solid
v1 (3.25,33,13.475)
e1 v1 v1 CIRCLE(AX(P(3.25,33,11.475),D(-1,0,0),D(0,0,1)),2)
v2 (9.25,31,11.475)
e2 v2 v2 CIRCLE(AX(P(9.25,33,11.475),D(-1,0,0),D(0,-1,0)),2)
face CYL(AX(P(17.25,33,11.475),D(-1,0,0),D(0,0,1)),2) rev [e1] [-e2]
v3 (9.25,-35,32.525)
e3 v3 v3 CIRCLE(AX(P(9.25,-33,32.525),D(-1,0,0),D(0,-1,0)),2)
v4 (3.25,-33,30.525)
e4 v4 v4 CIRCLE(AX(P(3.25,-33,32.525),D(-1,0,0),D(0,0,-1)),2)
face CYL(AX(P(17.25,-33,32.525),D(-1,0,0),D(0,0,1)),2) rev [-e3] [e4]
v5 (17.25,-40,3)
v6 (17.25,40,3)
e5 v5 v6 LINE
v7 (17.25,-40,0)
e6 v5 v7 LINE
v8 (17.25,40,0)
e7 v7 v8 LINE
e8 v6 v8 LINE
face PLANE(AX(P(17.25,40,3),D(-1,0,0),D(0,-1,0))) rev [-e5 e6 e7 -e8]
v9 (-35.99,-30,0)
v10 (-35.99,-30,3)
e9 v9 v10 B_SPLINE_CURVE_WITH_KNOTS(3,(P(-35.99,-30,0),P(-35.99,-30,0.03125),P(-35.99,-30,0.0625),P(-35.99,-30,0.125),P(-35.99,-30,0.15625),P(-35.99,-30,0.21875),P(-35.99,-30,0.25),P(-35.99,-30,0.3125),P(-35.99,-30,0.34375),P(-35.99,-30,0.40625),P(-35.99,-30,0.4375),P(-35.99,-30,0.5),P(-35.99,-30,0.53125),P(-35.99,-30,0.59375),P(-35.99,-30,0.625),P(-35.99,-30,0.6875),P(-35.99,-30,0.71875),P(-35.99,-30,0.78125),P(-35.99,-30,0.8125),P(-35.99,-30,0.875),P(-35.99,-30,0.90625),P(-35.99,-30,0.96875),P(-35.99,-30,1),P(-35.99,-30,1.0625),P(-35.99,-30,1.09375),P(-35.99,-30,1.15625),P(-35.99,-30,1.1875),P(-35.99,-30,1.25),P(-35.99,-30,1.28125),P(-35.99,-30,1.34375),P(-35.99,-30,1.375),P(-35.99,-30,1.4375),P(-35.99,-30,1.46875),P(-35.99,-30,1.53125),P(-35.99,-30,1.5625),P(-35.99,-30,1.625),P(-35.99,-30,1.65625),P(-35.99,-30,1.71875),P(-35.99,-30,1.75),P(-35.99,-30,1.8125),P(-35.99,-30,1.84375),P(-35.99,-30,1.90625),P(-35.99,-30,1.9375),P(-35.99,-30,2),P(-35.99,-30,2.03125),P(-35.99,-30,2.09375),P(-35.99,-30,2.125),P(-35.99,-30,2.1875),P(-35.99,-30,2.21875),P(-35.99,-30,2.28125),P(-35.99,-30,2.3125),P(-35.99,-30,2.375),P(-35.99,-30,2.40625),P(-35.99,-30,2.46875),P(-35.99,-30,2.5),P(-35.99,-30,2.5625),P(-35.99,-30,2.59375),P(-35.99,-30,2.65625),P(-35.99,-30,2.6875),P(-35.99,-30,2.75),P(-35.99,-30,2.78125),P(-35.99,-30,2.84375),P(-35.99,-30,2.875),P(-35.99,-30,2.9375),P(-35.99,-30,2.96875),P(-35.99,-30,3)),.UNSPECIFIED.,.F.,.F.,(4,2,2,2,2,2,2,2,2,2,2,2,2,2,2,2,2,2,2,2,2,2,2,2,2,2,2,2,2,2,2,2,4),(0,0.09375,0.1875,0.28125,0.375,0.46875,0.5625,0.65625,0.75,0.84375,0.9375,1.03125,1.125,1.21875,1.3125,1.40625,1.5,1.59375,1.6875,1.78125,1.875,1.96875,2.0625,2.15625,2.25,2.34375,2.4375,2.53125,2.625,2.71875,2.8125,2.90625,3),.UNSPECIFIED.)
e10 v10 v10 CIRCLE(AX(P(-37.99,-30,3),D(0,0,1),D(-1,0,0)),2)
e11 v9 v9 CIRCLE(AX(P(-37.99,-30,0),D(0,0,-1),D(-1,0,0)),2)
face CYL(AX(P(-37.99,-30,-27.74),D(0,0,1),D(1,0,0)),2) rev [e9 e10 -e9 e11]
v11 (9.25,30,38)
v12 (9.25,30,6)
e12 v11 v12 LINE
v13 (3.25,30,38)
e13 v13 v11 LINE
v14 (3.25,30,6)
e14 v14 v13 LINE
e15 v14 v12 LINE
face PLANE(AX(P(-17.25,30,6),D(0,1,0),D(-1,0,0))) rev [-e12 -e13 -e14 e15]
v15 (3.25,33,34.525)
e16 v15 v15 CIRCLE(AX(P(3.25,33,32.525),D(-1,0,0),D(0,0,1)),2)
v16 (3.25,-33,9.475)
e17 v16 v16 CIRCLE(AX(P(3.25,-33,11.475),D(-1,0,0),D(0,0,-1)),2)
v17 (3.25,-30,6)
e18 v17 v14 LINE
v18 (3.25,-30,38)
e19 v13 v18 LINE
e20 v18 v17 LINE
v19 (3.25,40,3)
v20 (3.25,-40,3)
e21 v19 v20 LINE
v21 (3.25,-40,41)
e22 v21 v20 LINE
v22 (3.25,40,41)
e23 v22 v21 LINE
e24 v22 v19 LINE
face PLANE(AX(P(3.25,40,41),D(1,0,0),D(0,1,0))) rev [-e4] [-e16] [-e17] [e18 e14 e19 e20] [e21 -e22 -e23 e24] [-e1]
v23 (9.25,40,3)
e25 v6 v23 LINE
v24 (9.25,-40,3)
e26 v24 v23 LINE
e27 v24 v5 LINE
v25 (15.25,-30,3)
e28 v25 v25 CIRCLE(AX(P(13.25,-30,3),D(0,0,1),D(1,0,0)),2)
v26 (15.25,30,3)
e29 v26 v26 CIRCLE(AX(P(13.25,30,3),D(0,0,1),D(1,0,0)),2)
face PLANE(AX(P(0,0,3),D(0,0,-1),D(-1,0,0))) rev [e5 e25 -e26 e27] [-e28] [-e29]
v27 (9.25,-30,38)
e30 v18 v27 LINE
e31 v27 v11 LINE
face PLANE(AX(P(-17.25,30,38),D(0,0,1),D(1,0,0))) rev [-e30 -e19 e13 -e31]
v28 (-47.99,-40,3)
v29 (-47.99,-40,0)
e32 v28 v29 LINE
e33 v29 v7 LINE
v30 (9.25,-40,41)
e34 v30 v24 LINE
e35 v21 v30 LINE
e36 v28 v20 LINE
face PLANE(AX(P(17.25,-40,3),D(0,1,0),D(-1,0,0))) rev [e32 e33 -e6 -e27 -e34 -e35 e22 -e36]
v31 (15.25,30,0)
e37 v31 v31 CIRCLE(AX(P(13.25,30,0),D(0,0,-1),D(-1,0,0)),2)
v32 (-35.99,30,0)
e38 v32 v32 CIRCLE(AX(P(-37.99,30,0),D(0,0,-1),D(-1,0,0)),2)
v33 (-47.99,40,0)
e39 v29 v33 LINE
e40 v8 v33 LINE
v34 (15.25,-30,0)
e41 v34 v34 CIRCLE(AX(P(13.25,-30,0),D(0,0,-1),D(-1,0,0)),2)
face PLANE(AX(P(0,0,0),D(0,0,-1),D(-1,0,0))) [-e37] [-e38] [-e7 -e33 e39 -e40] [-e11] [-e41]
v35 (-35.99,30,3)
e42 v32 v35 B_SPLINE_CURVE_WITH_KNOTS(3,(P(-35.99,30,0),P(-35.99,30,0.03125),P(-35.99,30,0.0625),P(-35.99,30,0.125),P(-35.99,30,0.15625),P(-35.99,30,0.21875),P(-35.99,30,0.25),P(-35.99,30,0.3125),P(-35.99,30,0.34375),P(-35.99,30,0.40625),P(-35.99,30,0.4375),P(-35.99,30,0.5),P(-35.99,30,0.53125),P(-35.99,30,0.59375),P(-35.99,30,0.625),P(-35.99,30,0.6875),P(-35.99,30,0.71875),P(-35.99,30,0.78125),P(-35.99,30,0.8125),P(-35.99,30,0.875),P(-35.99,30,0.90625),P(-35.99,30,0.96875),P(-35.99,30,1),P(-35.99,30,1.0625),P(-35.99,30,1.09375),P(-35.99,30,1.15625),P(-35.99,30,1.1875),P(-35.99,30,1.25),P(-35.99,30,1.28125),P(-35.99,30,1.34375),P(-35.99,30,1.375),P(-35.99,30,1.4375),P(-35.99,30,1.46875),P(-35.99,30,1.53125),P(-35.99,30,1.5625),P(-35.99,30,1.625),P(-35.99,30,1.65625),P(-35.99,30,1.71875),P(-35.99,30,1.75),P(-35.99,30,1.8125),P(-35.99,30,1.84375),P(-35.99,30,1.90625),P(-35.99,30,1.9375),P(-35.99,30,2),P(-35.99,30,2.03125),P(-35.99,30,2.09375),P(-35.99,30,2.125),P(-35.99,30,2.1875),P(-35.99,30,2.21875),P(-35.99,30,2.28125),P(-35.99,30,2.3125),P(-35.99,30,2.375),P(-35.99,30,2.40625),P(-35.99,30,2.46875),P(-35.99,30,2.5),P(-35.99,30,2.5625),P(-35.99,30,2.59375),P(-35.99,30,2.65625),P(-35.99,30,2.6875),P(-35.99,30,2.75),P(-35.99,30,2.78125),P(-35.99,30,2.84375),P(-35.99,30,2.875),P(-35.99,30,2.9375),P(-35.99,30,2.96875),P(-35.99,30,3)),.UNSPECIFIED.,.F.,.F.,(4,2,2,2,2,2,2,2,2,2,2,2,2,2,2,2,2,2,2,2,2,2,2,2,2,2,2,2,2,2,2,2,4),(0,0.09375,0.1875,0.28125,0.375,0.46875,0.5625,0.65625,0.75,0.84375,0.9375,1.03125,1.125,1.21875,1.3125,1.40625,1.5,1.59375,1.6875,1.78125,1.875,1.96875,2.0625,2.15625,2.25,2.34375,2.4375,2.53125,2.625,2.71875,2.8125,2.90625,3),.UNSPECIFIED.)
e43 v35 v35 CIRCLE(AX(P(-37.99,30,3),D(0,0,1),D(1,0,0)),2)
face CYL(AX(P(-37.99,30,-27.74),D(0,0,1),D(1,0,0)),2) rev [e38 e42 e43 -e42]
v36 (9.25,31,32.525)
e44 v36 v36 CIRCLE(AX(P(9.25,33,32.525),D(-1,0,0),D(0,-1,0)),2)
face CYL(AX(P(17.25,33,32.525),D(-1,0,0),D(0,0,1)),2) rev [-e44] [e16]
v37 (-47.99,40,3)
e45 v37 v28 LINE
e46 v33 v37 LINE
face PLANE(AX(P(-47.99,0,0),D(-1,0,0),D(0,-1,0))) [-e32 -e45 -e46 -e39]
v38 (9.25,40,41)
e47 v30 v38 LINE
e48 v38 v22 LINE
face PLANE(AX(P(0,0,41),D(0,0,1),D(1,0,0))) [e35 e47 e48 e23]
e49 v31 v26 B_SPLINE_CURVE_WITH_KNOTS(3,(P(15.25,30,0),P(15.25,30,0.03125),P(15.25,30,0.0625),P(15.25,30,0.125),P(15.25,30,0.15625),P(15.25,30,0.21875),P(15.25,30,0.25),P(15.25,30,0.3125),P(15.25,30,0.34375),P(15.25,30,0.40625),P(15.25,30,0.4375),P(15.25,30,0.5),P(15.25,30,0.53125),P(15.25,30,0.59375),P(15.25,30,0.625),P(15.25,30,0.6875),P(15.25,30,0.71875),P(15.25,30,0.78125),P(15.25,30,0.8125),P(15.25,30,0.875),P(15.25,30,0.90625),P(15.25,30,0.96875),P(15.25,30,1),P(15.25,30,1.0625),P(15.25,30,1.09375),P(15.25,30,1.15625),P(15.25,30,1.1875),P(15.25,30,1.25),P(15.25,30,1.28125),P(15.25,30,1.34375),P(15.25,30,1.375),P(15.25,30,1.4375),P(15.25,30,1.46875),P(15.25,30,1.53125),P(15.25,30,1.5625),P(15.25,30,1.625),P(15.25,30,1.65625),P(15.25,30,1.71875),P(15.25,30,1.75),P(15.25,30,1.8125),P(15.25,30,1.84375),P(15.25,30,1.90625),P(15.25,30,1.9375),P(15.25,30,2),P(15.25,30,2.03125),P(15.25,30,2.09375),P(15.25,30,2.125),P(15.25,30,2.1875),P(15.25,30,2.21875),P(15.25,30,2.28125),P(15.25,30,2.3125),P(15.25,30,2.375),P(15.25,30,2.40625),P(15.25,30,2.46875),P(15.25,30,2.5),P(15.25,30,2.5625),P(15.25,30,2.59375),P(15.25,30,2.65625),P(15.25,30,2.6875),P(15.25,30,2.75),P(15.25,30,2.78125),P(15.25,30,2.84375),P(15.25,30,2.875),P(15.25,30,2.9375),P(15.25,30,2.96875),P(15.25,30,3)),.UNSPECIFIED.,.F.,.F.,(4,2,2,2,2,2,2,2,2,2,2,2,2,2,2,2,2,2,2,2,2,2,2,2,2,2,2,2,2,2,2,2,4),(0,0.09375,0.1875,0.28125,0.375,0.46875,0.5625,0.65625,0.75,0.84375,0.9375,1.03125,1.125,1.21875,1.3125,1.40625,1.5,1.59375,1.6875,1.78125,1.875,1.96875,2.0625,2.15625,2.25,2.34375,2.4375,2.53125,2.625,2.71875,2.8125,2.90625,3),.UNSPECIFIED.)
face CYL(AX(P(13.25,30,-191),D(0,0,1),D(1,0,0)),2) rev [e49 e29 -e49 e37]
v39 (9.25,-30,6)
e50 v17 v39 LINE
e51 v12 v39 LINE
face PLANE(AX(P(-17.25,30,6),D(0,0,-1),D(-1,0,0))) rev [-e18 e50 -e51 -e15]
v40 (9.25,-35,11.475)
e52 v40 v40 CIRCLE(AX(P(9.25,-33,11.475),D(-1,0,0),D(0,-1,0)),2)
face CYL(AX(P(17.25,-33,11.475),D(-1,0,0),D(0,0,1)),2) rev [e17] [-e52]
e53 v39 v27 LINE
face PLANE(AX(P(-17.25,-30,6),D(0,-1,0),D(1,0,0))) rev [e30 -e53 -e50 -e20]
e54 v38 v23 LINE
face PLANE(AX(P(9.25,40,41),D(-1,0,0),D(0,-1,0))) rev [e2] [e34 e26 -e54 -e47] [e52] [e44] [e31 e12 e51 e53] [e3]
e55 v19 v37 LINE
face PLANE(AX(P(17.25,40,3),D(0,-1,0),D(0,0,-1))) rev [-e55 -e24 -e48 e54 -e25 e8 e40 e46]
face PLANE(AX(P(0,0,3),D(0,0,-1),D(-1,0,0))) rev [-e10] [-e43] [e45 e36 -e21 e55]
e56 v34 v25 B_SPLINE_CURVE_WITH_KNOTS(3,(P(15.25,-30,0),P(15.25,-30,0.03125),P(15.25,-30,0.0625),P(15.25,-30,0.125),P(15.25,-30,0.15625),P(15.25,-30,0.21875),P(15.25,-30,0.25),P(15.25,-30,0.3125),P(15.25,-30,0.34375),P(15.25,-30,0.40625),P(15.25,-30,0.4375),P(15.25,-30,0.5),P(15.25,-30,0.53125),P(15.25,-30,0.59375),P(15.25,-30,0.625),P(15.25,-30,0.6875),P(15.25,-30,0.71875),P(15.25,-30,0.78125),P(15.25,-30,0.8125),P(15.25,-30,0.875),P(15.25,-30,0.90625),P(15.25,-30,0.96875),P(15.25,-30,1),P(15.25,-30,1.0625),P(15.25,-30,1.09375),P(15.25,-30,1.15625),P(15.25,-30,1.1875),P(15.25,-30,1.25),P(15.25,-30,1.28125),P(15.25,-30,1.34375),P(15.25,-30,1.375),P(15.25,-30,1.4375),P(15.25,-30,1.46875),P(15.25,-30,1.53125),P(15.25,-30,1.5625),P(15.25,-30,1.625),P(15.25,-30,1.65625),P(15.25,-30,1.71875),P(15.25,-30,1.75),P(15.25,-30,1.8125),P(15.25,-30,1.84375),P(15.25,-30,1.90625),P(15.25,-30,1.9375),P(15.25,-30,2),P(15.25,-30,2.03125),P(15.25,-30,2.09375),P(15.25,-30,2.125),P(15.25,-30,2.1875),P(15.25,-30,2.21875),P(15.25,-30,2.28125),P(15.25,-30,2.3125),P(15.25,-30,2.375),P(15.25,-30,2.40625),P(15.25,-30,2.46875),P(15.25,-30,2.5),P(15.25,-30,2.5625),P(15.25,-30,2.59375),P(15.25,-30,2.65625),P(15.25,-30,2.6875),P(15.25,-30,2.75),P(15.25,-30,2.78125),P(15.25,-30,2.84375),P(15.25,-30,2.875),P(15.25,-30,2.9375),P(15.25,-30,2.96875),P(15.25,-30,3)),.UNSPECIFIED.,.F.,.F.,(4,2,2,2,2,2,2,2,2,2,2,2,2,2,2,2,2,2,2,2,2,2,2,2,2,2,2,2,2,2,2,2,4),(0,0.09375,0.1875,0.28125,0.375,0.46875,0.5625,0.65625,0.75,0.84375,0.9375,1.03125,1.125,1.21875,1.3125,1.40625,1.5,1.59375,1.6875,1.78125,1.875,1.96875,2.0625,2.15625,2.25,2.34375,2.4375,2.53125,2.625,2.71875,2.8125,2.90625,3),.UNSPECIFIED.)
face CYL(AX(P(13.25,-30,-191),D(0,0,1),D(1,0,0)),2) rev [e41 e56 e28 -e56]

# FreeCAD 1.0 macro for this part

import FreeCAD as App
import Part
import Sketcher
Q = App.Units.Quantity

doc = App.newDocument("Part")
body = doc.addObject("PartDesign::Body", "Body")

# Sketch on XY plane
sketch1 = doc.addObject("Sketcher::SketchObject", "Sketch")
body.addObject(sketch1)
sketch1.AttachmentSupport = (doc.XY_Plane, [""])
sketch1.MapMode = "FlatFace"
sketch1.addGeometry(Part.LineSegment(App.Vector(-17, 40, 0), App.Vector(-17, -40, 0)), False)
sketch1.addGeometry(Part.LineSegment(App.Vector(-17, -40, 0), App.Vector(17, -40, 0)), False)
sketch1.addGeometry(Part.LineSegment(App.Vector(17, -40, 0), App.Vector(17, 40, 0)), False)
sketch1.addGeometry(Part.LineSegment(App.Vector(17, 40, 0), App.Vector(-17, 40, 0)), False)
sketch1.addConstraint(Sketcher.Constraint("Coincident", 0, 2, 1, 1))
sketch1.addConstraint(Sketcher.Constraint("Coincident", 1, 2, 2, 1))
sketch1.addConstraint(Sketcher.Constraint("Coincident", 2, 2, 3, 1))
sketch1.addConstraint(Sketcher.Constraint("Coincident", 3, 2, 0, 1))
sketch1.addConstraint(Sketcher.Constraint("Vertical", 0))
sketch1.addConstraint(Sketcher.Constraint("Horizontal", 1))
sketch1.addConstraint(Sketcher.Constraint("Vertical", 2))
sketch1.addConstraint(Sketcher.Constraint("Horizontal", 3))
sketch1.addConstraint(Sketcher.Constraint("Symmetric", 0, 2, 2, 2, -1, 1))
sketch1.addConstraint(Sketcher.Constraint("DistanceY", 0, 2, 0, 1, Q("80 mm")))
sketch1.addConstraint(Sketcher.Constraint("DistanceX", 1, 1, 1, 2, Q("34.5 mm")))
pad1 = doc.addObject("PartDesign::Pad", "Pad")
body.addObject(pad1)
pad1.Profile = sketch1
pad1.Length = 3

# Sketch on XY plane
sketch2 = doc.addObject("Sketcher::SketchObject", "Sketch001")
body.addObject(sketch2)
sketch2.AttachmentSupport = (doc.XY_Plane, [""])
sketch2.MapMode = "FlatFace"
sketch2.AttachmentOffset = App.Placement(App.Vector(0, 0, 3), App.Rotation())
sketch2.addGeometry(Part.LineSegment(App.Vector(3, 40, 0), App.Vector(3, -40, 0)), False)
sketch2.addGeometry(Part.LineSegment(App.Vector(3, -40, 0), App.Vector(9, -40, 0)), False)
sketch2.addGeometry(Part.LineSegment(App.Vector(9, -40, 0), App.Vector(9, 40, 0)), False)
sketch2.addGeometry(Part.LineSegment(App.Vector(9, 40, 0), App.Vector(3, 40, 0)), False)
sketch2.addConstraint(Sketcher.Constraint("Coincident", 0, 2, 1, 1))
sketch2.addConstraint(Sketcher.Constraint("Coincident", 1, 2, 2, 1))
sketch2.addConstraint(Sketcher.Constraint("Coincident", 2, 2, 3, 1))
sketch2.addConstraint(Sketcher.Constraint("Coincident", 3, 2, 0, 1))
sketch2.addConstraint(Sketcher.Constraint("Vertical", 0))
sketch2.addConstraint(Sketcher.Constraint("Horizontal", 1))
sketch2.addConstraint(Sketcher.Constraint("Vertical", 2))
sketch2.addConstraint(Sketcher.Constraint("Horizontal", 3))
sketch2.addConstraint(Sketcher.Constraint("DistanceX", 1, 1, 1, 2, Q("6 mm")))
sketch2.addConstraint(Sketcher.Constraint("DistanceY", 0, 2, 0, 1, Q("80 mm")))
sketch2.addConstraint(Sketcher.Constraint("DistanceY", 0, 2, -1, 1, Q("40 mm")))
sketch2.addConstraint(Sketcher.Constraint("DistanceX", -1, 1, 0, 2, Q("3.25 mm")))
pad2 = doc.addObject("PartDesign::Pad", "Pad001")
body.addObject(pad2)
pad2.Profile = sketch2
pad2.Length = 38

# Sketch on YZ plane
sketch3 = doc.addObject("Sketcher::SketchObject", "Sketch002")
body.addObject(sketch3)
sketch3.AttachmentSupport = (doc.YZ_Plane, [""])
sketch3.MapMode = "FlatFace"
sketch3.AttachmentOffset = App.Placement(App.Vector(0, 0, 9.25), App.Rotation())
sketch3.addGeometry(Part.LineSegment(App.Vector(30, 38, 0), App.Vector(-30, 38, 0)), False)
sketch3.addGeometry(Part.LineSegment(App.Vector(-30, 38, 0), App.Vector(-30, 6, 0)), False)
sketch3.addGeometry(Part.LineSegment(App.Vector(-30, 6, 0), App.Vector(30, 6, 0)), False)
sketch3.addGeometry(Part.LineSegment(App.Vector(30, 6, 0), App.Vector(30, 38, 0)), False)
sketch3.addConstraint(Sketcher.Constraint("Coincident", 0, 2, 1, 1))
sketch3.addConstraint(Sketcher.Constraint("Coincident", 1, 2, 2, 1))
sketch3.addConstraint(Sketcher.Constraint("Coincident", 2, 2, 3, 1))
sketch3.addConstraint(Sketcher.Constraint("Coincident", 3, 2, 0, 1))
sketch3.addConstraint(Sketcher.Constraint("Horizontal", 0))
sketch3.addConstraint(Sketcher.Constraint("Vertical", 1))
sketch3.addConstraint(Sketcher.Constraint("Horizontal", 2))
sketch3.addConstraint(Sketcher.Constraint("Vertical", 3))
sketch3.addConstraint(Sketcher.Constraint("DistanceX", 0, 2, 0, 1, Q("60 mm")))
sketch3.addConstraint(Sketcher.Constraint("DistanceY", 1, 2, 1, 1, Q("32 mm")))
sketch3.addConstraint(Sketcher.Constraint("DistanceX", 0, 2, -1, 1, Q("30 mm")))
sketch3.addConstraint(Sketcher.Constraint("DistanceY", -1, 1, 0, 2, Q("38 mm")))
pocket1 = doc.addObject("PartDesign::Pocket", "Pocket")
body.addObject(pocket1)
pocket1.Profile = sketch3
pocket1.Type = "ThroughAll"
pocket1.Midplane = True

# Sketch on YZ plane
sketch4 = doc.addObject("Sketcher::SketchObject", "Sketch003")
body.addObject(sketch4)
sketch4.AttachmentSupport = (doc.YZ_Plane, [""])
sketch4.MapMode = "FlatFace"
sketch4.AttachmentOffset = App.Placement(App.Vector(0, 0, 3.25), App.Rotation())
sketch4.addGeometry(Part.Circle(App.Vector(33, 11.5, 0), App.Vector(0, 0, 1), 2), False)
sketch4.addGeometry(Part.Circle(App.Vector(33, 32.5, 0), App.Vector(0, 0, 1), 2), False)
sketch4.addGeometry(Part.Circle(App.Vector(-33, 32.5, 0), App.Vector(0, 0, 1), 2), False)
sketch4.addGeometry(Part.Circle(App.Vector(-33, 11.5, 0), App.Vector(0, 0, 1), 2), False)
sketch4.addConstraint(Sketcher.Constraint("Equal", 0, 1))
sketch4.addConstraint(Sketcher.Constraint("Equal", 1, 2))
sketch4.addConstraint(Sketcher.Constraint("Equal", 2, 3))
sketch4.addConstraint(Sketcher.Constraint("Symmetric", 1, 3, 2, 3, -2))
sketch4.addConstraint(Sketcher.Constraint("Symmetric", 0, 3, 3, 3, -2))
sketch4.addConstraint(Sketcher.Constraint("Vertical", 0, 3, 1, 3))
sketch4.addConstraint(Sketcher.Constraint("Diameter", 0, Q("4 mm")))
sketch4.addConstraint(Sketcher.Constraint("DistanceX", -1, 1, 0, 3, Q("33 mm")))
sketch4.addConstraint(Sketcher.Constraint("DistanceY", 0, 3, 1, 3, Q("21.05 mm")))
sketch4.addConstraint(Sketcher.Constraint("DistanceY", -1, 1, 0, 3, Q("11.475 mm")))
pocket2 = doc.addObject("PartDesign::Pocket", "Pocket001")
body.addObject(pocket2)
pocket2.Profile = sketch4
pocket2.Type = "ThroughAll"
pocket2.Reversed = True

# Sketch on YZ plane
sketch5 = doc.addObject("Sketcher::SketchObject", "Sketch004")
body.addObject(sketch5)
sketch5.AttachmentSupport = (doc.YZ_Plane, [""])
sketch5.MapMode = "FlatFace"
sketch5.AttachmentOffset = App.Placement(App.Vector(0, 0, -17.25), App.Rotation())
sketch5.addGeometry(Part.LineSegment(App.Vector(40, 3, 0), App.Vector(-40, 3, 0)), False)
sketch5.addGeometry(Part.LineSegment(App.Vector(-40, 3, 0), App.Vector(-40, 0, 0)), False)
sketch5.addGeometry(Part.LineSegment(App.Vector(-40, 0, 0), App.Vector(40, 0, 0)), False)
sketch5.addGeometry(Part.LineSegment(App.Vector(40, 0, 0), App.Vector(40, 3, 0)), False)
sketch5.addConstraint(Sketcher.Constraint("Coincident", 0, 2, 1, 1))
sketch5.addConstraint(Sketcher.Constraint("Coincident", 1, 2, 2, 1))
sketch5.addConstraint(Sketcher.Constraint("Coincident", 2, 2, 3, 1))
sketch5.addConstraint(Sketcher.Constraint("Coincident", 3, 2, 0, 1))
sketch5.addConstraint(Sketcher.Constraint("Horizontal", 0))
sketch5.addConstraint(Sketcher.Constraint("Vertical", 1))
sketch5.addConstraint(Sketcher.Constraint("Horizontal", 2))
sketch5.addConstraint(Sketcher.Constraint("Vertical", 3))
sketch5.addConstraint(Sketcher.Constraint("Symmetric", 1, 2, 2, 2, -1, 1))
sketch5.addConstraint(Sketcher.Constraint("DistanceX", 0, 2, 0, 1, Q("80 mm")))
sketch5.addConstraint(Sketcher.Constraint("DistanceY", 1, 2, 1, 1, Q("3 mm")))
pad3 = doc.addObject("PartDesign::Pad", "Pad002")
body.addObject(pad3)
pad3.Profile = sketch5
pad3.Length = 30.74
pad3.Reversed = True

# Sketch on XY plane
sketch6 = doc.addObject("Sketcher::SketchObject", "Sketch005")
body.addObject(sketch6)
sketch6.AttachmentSupport = (doc.XY_Plane, [""])
sketch6.MapMode = "FlatFace"
sketch6.AttachmentOffset = App.Placement(App.Vector(0, 0, 3), App.Rotation())
sketch6.addGeometry(Part.Circle(App.Vector(-38, 30, 0), App.Vector(0, 0, 1), 2), False)
sketch6.addGeometry(Part.Circle(App.Vector(-38, -30, 0), App.Vector(0, 0, 1), 2), False)
sketch6.addConstraint(Sketcher.Constraint("Equal", 0, 1))
sketch6.addConstraint(Sketcher.Constraint("Symmetric", 0, 3, 1, 3, -1))
sketch6.addConstraint(Sketcher.Constraint("Diameter", 0, Q("4 mm")))
sketch6.addConstraint(Sketcher.Constraint("DistanceY", -1, 1, 0, 3, Q("30 mm")))
sketch6.addConstraint(Sketcher.Constraint("DistanceX", 0, 3, -1, 1, Q("37.99 mm")))
pocket3 = doc.addObject("PartDesign::Pocket", "Pocket002")
body.addObject(pocket3)
pocket3.Profile = sketch6
pocket3.Length = 30.74

# Sketch on XY plane
sketch7 = doc.addObject("Sketcher::SketchObject", "Sketch006")
body.addObject(sketch7)
sketch7.AttachmentSupport = (doc.XY_Plane, [""])
sketch7.MapMode = "FlatFace"
sketch7.AttachmentOffset = App.Placement(App.Vector(0, 0, 3), App.Rotation())
sketch7.addGeometry(Part.Circle(App.Vector(13.2, 30, 0), App.Vector(0, 0, 1), 2), False)
sketch7.addGeometry(Part.Circle(App.Vector(13.2, -30, 0), App.Vector(0, 0, 1), 2), False)
sketch7.addConstraint(Sketcher.Constraint("Equal", 0, 1))
sketch7.addConstraint(Sketcher.Constraint("Symmetric", 0, 3, 1, 3, -1))
sketch7.addConstraint(Sketcher.Constraint("Diameter", 0, Q("4 mm")))
sketch7.addConstraint(Sketcher.Constraint("DistanceY", -1, 1, 0, 3, Q("30 mm")))
sketch7.addConstraint(Sketcher.Constraint("DistanceX", -1, 1, 0, 3, Q("13.25 mm")))
pocket4 = doc.addObject("PartDesign::Pocket", "Pocket003")
body.addObject(pocket4)
pocket4.Profile = sketch7
pocket4.Length = 194

doc.recompute()
